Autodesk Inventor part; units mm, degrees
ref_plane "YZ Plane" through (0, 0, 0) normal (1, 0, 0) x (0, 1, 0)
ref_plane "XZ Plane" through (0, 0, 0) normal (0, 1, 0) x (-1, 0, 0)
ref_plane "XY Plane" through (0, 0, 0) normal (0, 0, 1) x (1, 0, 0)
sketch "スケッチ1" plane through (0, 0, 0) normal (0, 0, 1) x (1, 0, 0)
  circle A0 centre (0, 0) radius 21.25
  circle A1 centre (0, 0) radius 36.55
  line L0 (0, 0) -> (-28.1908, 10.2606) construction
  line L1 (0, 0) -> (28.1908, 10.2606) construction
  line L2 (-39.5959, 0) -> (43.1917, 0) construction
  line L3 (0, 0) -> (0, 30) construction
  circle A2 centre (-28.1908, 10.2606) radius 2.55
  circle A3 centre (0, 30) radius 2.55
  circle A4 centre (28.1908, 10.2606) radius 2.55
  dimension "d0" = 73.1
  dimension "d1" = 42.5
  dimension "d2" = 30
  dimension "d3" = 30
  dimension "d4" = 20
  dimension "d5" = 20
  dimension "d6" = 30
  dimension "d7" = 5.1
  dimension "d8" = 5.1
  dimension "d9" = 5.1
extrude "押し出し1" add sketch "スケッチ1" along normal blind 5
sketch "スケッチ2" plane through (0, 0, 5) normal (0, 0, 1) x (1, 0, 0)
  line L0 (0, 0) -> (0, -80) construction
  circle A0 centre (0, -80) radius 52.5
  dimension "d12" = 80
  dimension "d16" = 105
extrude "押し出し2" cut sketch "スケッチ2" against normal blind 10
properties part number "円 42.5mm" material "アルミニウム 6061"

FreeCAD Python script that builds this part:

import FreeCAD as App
import Part
import Sketcher

V = App.Vector
Q = App.Units.Quantity

doc = App.newDocument("Part")
body = doc.addObject("PartDesign::Body", "Body")

# Sketch on XY plane
sketch1 = body.newObject("Sketcher::SketchObject", "Sketch")
sketch1.AttachmentSupport = (doc.getObject("XY_Plane"), [""])
sketch1.MapMode = "FlatFace"
sketch1.addGeometry([
    Part.Circle(V(0, 0, 0), V(0, 0, 1), 36.5),  # 0
    Part.Circle(V(-28.2, 10.3, 0), V(0, 0, 1), 2.5),  # 1
    Part.Circle(V(0, 0, 0), V(0, 0, 1), 21.2),  # 2
    Part.Circle(V(28.2, 10.3, 0), V(0, 0, 1), 2.5),  # 3
    Part.Circle(V(0, 30, 0), V(0, 0, 1), 2.5),  # 4
], False)
sketch1.addConstraint([
    Sketcher.Constraint("Coincident", 0, 3, -1, 1),
    Sketcher.Constraint("Coincident", 2, 3, -1, 1),
    Sketcher.Constraint("Equal", 1, 3),
    Sketcher.Constraint("Equal", 3, 4),
    Sketcher.Constraint("Symmetric", 1, 3, 3, 3, -2),
    Sketcher.Constraint("PointOnObject", 4, 3, -2),
    Sketcher.Constraint("Diameter", 0, Q("73.1 mm")),
    Sketcher.Constraint("Diameter", 1, Q("5.1 mm")),
    Sketcher.Constraint("Diameter", 2, Q("42.5 mm")),
    Sketcher.Constraint("DistanceY", -1, 1, 4, 3, Q("30 mm")),
    Sketcher.Constraint("DistanceX", 1, 3, -1, 1, Q("28.1908 mm")),
    Sketcher.Constraint("DistanceY", -1, 1, 1, 3, Q("10.2606 mm")),
])
pad1 = body.newObject("PartDesign::Pad", "Pad")
pad1.Profile = sketch1
pad1.Length = 5

# Sketch on XY plane
sketch2 = body.newObject("Sketcher::SketchObject", "Sketch001")
sketch2.AttachmentSupport = (doc.getObject("XY_Plane"), [""])
sketch2.MapMode = "FlatFace"
sketch2.AttachmentOffset = App.Placement(V(0, 0, 5), App.Rotation())
sketch2.addGeometry(Part.Circle(V(0, -80, 0), V(0, 0, 1), 52), False)
sketch2.addConstraint([
    Sketcher.Constraint("PointOnObject", 0, 3, -2),
    Sketcher.Constraint("Diameter", 0, Q("105 mm")),
    Sketcher.Constraint("DistanceY", 0, 3, -1, 1, Q("80 mm")),
])
pocket1 = body.newObject("PartDesign::Pocket", "Pocket")
pocket1.Profile = sketch2
pocket1.Length = 10

doc.recompute()
